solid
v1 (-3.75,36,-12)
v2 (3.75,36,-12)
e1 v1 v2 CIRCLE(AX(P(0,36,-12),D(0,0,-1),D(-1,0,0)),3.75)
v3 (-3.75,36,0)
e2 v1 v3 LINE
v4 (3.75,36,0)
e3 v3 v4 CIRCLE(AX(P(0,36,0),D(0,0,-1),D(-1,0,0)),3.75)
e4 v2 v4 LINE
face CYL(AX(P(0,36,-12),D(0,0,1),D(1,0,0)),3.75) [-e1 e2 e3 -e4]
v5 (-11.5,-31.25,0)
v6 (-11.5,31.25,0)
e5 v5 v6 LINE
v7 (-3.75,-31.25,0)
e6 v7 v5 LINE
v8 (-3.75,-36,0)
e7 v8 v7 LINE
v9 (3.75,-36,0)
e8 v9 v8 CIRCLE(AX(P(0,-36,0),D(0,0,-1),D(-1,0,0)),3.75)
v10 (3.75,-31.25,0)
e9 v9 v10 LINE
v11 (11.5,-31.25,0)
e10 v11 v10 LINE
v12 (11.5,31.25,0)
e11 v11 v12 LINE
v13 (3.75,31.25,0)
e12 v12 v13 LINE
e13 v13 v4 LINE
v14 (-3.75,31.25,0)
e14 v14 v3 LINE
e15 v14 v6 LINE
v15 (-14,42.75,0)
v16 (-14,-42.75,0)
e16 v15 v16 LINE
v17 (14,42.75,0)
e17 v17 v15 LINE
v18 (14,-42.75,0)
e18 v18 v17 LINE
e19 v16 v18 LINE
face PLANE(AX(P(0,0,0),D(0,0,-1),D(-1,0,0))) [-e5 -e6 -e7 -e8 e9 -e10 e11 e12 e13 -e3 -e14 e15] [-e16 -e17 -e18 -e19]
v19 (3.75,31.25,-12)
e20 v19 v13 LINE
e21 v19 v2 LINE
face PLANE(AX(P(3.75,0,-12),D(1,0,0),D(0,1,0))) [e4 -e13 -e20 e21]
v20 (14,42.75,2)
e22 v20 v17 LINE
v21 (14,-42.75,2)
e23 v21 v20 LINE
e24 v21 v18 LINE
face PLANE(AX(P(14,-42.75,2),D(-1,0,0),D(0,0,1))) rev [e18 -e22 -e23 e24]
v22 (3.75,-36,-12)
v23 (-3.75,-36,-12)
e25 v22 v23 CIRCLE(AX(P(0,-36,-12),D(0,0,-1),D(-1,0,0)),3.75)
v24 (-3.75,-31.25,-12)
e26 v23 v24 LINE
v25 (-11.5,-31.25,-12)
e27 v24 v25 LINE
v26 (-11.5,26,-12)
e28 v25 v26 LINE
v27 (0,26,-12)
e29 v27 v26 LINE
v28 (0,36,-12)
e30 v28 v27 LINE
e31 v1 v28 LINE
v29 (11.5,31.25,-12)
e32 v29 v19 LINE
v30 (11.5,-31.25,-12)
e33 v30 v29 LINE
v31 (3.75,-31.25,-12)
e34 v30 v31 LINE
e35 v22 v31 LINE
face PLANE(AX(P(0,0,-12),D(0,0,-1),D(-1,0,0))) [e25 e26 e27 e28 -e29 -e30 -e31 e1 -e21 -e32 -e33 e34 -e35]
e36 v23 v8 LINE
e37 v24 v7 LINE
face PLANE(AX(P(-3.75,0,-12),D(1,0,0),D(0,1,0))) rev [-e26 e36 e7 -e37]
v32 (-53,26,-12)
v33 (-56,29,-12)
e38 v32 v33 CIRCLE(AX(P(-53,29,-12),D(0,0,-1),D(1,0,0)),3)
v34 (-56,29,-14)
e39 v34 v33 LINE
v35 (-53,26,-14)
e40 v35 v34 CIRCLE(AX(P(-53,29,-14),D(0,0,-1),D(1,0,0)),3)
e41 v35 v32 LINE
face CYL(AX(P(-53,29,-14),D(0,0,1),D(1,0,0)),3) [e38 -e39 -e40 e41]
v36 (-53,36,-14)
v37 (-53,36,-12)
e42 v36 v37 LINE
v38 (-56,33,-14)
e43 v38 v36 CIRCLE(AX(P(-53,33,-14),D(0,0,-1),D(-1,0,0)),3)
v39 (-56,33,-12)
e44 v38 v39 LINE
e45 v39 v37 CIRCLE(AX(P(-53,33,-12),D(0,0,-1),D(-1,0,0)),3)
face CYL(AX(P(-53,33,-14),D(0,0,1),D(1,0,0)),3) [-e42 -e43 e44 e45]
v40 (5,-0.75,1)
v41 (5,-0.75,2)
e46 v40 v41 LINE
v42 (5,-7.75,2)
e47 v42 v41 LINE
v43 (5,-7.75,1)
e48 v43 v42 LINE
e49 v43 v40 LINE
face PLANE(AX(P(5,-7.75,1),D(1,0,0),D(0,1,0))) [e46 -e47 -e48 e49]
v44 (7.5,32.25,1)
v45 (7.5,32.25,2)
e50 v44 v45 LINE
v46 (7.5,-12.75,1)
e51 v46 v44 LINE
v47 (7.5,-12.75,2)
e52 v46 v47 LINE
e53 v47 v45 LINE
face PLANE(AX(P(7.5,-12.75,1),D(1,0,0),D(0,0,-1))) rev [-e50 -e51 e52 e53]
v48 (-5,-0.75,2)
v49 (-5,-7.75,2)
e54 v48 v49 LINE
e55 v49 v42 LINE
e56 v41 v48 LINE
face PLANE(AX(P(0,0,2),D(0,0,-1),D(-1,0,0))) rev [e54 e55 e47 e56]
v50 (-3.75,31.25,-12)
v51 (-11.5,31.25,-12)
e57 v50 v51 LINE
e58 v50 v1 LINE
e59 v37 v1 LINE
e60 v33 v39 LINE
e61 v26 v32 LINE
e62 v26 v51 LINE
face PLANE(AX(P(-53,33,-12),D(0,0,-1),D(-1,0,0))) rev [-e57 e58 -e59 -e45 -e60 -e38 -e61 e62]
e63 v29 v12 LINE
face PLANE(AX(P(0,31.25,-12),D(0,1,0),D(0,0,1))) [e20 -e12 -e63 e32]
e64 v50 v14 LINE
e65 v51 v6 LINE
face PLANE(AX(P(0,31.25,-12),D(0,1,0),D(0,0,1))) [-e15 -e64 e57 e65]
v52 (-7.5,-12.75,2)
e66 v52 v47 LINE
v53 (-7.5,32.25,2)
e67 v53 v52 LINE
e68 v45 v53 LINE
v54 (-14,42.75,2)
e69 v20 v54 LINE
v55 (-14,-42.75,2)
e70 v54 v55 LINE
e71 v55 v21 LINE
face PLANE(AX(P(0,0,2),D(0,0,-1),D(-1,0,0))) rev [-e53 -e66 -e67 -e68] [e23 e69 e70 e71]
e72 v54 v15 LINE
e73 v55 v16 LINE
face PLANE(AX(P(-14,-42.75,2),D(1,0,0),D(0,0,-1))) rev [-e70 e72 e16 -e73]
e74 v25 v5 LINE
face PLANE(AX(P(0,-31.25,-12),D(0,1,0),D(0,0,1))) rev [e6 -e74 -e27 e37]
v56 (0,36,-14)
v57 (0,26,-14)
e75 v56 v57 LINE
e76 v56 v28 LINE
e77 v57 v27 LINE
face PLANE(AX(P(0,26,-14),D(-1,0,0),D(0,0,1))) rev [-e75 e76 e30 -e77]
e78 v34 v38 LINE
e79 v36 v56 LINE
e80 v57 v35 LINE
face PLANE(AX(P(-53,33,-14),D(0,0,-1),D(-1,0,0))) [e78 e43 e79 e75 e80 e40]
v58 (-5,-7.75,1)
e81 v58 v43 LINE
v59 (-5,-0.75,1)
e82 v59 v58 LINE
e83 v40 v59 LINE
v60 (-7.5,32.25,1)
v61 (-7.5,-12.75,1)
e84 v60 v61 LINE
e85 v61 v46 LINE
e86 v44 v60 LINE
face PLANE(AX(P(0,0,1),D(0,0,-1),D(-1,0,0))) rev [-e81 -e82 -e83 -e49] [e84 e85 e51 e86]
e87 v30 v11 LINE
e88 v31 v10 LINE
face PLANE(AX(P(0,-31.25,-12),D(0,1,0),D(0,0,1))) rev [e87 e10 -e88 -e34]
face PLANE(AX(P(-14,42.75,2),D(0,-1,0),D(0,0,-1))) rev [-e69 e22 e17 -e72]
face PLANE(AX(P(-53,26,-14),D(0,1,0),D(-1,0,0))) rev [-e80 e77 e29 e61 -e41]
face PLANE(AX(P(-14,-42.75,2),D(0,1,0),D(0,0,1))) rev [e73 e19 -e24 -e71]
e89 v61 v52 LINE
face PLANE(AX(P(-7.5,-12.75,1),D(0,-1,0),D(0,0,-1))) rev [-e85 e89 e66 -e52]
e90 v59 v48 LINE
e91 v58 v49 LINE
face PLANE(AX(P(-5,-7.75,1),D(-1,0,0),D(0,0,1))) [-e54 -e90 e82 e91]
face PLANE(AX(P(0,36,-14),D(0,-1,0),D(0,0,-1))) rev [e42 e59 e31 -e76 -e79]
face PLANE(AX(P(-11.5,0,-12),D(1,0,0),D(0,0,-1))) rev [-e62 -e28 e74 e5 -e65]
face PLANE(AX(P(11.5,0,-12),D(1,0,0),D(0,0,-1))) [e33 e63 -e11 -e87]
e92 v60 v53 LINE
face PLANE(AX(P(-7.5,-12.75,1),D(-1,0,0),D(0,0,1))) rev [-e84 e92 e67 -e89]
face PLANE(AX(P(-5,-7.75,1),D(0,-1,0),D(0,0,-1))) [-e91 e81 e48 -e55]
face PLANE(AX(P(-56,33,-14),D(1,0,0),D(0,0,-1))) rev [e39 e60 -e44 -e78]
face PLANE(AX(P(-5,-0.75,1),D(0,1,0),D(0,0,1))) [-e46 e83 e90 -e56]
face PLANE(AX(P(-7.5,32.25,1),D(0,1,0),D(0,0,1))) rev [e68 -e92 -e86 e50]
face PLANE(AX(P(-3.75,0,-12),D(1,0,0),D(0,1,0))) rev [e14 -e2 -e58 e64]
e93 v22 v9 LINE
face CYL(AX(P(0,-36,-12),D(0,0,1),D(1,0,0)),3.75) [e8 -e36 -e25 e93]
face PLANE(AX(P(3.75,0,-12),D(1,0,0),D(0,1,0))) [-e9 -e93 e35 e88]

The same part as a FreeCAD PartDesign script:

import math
import FreeCAD as App
import Part
import Sketcher

doc = App.newDocument("Part")
params = doc.addObject("Spreadsheet::Sheet", "Params")
for row, (alias, value) in enumerate([
    ("sketch1_width", "28 mm"),
    ("sketch1_height", "85.5 mm"),
    ("pad1_length", "2 mm"),
    ("sketch2_width", "15 mm"),
    ("sketch2_width2", "10 mm"),
    ("sketch2_height", "45 mm"),
    ("sketch2_height2", "7 mm"),
    ("pocket1_length", "1 mm"),
    ("sketch3_radius", "3.75 mm"),
    ("sketch3_height", "62.5 mm"),
    ("pad2_length", "12 mm"),
    ("sketch4_radius", "3 mm"),
    ("sketch4_width", "53 mm"),
    ("sketch4_height", "10 mm"),
    ("pad3_length", "2 mm"),
], start=1):
    params.set(f"A{row}", alias)
    params.set(f"B{row}", "=" + value)
    params.setAlias(f"B{row}", alias)

body = doc.addObject("PartDesign::Body", "Body")

# Sketch on XY plane
sketch1 = doc.addObject("Sketcher::SketchObject", "Sketch")
body.addObject(sketch1)
sketch1.AttachmentSupport = (doc.XY_Plane, [""])
sketch1.MapMode = "FlatFace"
sketch1.addGeometry(Part.LineSegment(App.Vector(-14, 43, 0), App.Vector(-14, -43, 0)), False)
sketch1.addGeometry(Part.LineSegment(App.Vector(-14, -43, 0), App.Vector(14, -43, 0)), False)
sketch1.addGeometry(Part.LineSegment(App.Vector(14, -43, 0), App.Vector(14, 43, 0)), False)
sketch1.addGeometry(Part.LineSegment(App.Vector(14, 43, 0), App.Vector(-14, 43, 0)), False)
sketch1.addConstraint(Sketcher.Constraint("Coincident", 0, 2, 1, 1))
sketch1.addConstraint(Sketcher.Constraint("Coincident", 1, 2, 2, 1))
sketch1.addConstraint(Sketcher.Constraint("Coincident", 2, 2, 3, 1))
sketch1.addConstraint(Sketcher.Constraint("Coincident", 3, 2, 0, 1))
sketch1.addConstraint(Sketcher.Constraint("Vertical", 0))
sketch1.addConstraint(Sketcher.Constraint("Horizontal", 1))
sketch1.addConstraint(Sketcher.Constraint("Vertical", 2))
sketch1.addConstraint(Sketcher.Constraint("Horizontal", 3))
sketch1.addConstraint(Sketcher.Constraint("Symmetric", 0, 2, 2, 2, -1, 1))
sketch1.addConstraint(Sketcher.Constraint("DistanceX", 1, 1, 1, 2, 28.0))
sketch1.addConstraint(Sketcher.Constraint("DistanceY", 0, 2, 0, 1, 85.5))
sketch1.setExpression("Constraints[9]", "Params.sketch1_width")
sketch1.setExpression("Constraints[10]", "Params.sketch1_height")
pad1 = doc.addObject("PartDesign::Pad", "Pad")
body.addObject(pad1)
pad1.Profile = sketch1
pad1.setExpression("Length", "Params.pad1_length")

# Sketch on XY plane
sketch2 = doc.addObject("Sketcher::SketchObject", "Sketch001")
body.addObject(sketch2)
sketch2.AttachmentSupport = (doc.XY_Plane, [""])
sketch2.MapMode = "FlatFace"
sketch2.AttachmentOffset = App.Placement(App.Vector(0, 0, 2), App.Rotation())
sketch2.addGeometry(Part.LineSegment(App.Vector(-8, 32, 0), App.Vector(-8, -13, 0)), False)
sketch2.addGeometry(Part.LineSegment(App.Vector(-8, -13, 0), App.Vector(8, -13, 0)), False)
sketch2.addGeometry(Part.LineSegment(App.Vector(8, -13, 0), App.Vector(8, 32, 0)), False)
sketch2.addGeometry(Part.LineSegment(App.Vector(8, 32, 0), App.Vector(-8, 32, 0)), False)
sketch2.addGeometry(Part.LineSegment(App.Vector(5, -8, 0), App.Vector(-5, -8, 0)), False)
sketch2.addGeometry(Part.LineSegment(App.Vector(-5, -8, 0), App.Vector(-5, -1, 0)), False)
sketch2.addGeometry(Part.LineSegment(App.Vector(-5, -1, 0), App.Vector(5, -1, 0)), False)
sketch2.addGeometry(Part.LineSegment(App.Vector(5, -1, 0), App.Vector(5, -8, 0)), False)
sketch2.addConstraint(Sketcher.Constraint("Coincident", 0, 2, 1, 1))
sketch2.addConstraint(Sketcher.Constraint("Coincident", 1, 2, 2, 1))
sketch2.addConstraint(Sketcher.Constraint("Coincident", 2, 2, 3, 1))
sketch2.addConstraint(Sketcher.Constraint("Coincident", 3, 2, 0, 1))
sketch2.addConstraint(Sketcher.Constraint("Coincident", 4, 2, 5, 1))
sketch2.addConstraint(Sketcher.Constraint("Coincident", 5, 2, 6, 1))
sketch2.addConstraint(Sketcher.Constraint("Coincident", 6, 2, 7, 1))
sketch2.addConstraint(Sketcher.Constraint("Coincident", 7, 2, 4, 1))
sketch2.addConstraint(Sketcher.Constraint("Vertical", 0))
sketch2.addConstraint(Sketcher.Constraint("Horizontal", 1))
sketch2.addConstraint(Sketcher.Constraint("Vertical", 2))
sketch2.addConstraint(Sketcher.Constraint("Horizontal", 3))
sketch2.addConstraint(Sketcher.Constraint("Horizontal", 4))
sketch2.addConstraint(Sketcher.Constraint("Vertical", 5))
sketch2.addConstraint(Sketcher.Constraint("Horizontal", 6))
sketch2.addConstraint(Sketcher.Constraint("Vertical", 7))
sketch2.addConstraint(Sketcher.Constraint("DistanceX", 1, 1, 1, 2, 15.0))
sketch2.addConstraint(Sketcher.Constraint("DistanceX", 4, 2, 4, 1, 10.0))
sketch2.addConstraint(Sketcher.Constraint("DistanceY", 0, 2, 0, 1, 45.0))
sketch2.addConstraint(Sketcher.Constraint("DistanceY", 5, 1, 5, 2, 7.0))
sketch2.addConstraint(Sketcher.Constraint("DistanceX", 4, 2, -1, 1, 5.0))
sketch2.addConstraint(Sketcher.Constraint("DistanceY", 0, 2, 4, 2, 5.0))
sketch2.addConstraint(Sketcher.Constraint("DistanceX", 0, 2, -1, 1, 7.5))
sketch2.addConstraint(Sketcher.Constraint("DistanceY", 0, 2, -1, 1, 12.75))
sketch2.setExpression("Constraints[16]", "Params.sketch2_width")
sketch2.setExpression("Constraints[17]", "Params.sketch2_width2")
sketch2.setExpression("Constraints[18]", "Params.sketch2_height")
sketch2.setExpression("Constraints[19]", "Params.sketch2_height2")
pocket1 = doc.addObject("PartDesign::Pocket", "Pocket")
body.addObject(pocket1)
pocket1.Profile = sketch2
pocket1.setExpression("Length", "Params.pocket1_length")

# Sketch on XY plane
sketch3 = doc.addObject("Sketcher::SketchObject", "Sketch002")
body.addObject(sketch3)
sketch3.AttachmentSupport = (doc.XY_Plane, [""])
sketch3.MapMode = "FlatFace"
sketch3.addGeometry(Part.LineSegment(App.Vector(11.5, 31.2, 0), App.Vector(11.5, -31.2, 0)), False)
sketch3.addGeometry(Part.LineSegment(App.Vector(11.5, -31.2, 0), App.Vector(3.8, -31.2, 0)), False)
sketch3.addGeometry(Part.LineSegment(App.Vector(3.8, -31.2, 0), App.Vector(3.8, -36, 0)), False)
sketch3.addGeometry(Part.ArcOfCircle(Part.Circle(App.Vector(0, -36, 0), App.Vector(0, 0, 1), 3.8), math.radians(180), math.radians(360)), False)
sketch3.addGeometry(Part.LineSegment(App.Vector(-3.8, -36, 0), App.Vector(-3.8, -31.2, 0)), False)
sketch3.addGeometry(Part.LineSegment(App.Vector(-3.8, -31.2, 0), App.Vector(-11.5, -31.2, 0)), False)
sketch3.addGeometry(Part.LineSegment(App.Vector(-11.5, -31.2, 0), App.Vector(-11.5, 31.2, 0)), False)
sketch3.addGeometry(Part.LineSegment(App.Vector(-11.5, 31.2, 0), App.Vector(-3.8, 31.2, 0)), False)
sketch3.addGeometry(Part.LineSegment(App.Vector(-3.8, 31.2, 0), App.Vector(-3.8, 36, 0)), False)
sketch3.addGeometry(Part.ArcOfCircle(Part.Circle(App.Vector(0, 36, 0), App.Vector(0, 0, 1), 3.8), math.radians(0), math.radians(180)), False)
sketch3.addGeometry(Part.LineSegment(App.Vector(3.8, 36, 0), App.Vector(3.8, 31.2, 0)), False)
sketch3.addGeometry(Part.LineSegment(App.Vector(3.8, 31.2, 0), App.Vector(11.5, 31.2, 0)), False)
sketch3.addConstraint(Sketcher.Constraint("Coincident", 0, 2, 1, 1))
sketch3.addConstraint(Sketcher.Constraint("Coincident", 1, 2, 2, 1))
sketch3.addConstraint(Sketcher.Constraint("Tangent", 2, 2, 3, 2))
sketch3.addConstraint(Sketcher.Constraint("Tangent", 3, 1, 4, 1))
sketch3.addConstraint(Sketcher.Constraint("Coincident", 4, 2, 5, 1))
sketch3.addConstraint(Sketcher.Constraint("Coincident", 5, 2, 6, 1))
sketch3.addConstraint(Sketcher.Constraint("Coincident", 6, 2, 7, 1))
sketch3.addConstraint(Sketcher.Constraint("Coincident", 7, 2, 8, 1))
sketch3.addConstraint(Sketcher.Constraint("Tangent", 8, 2, 9, 2))
sketch3.addConstraint(Sketcher.Constraint("Tangent", 9, 1, 10, 1))
sketch3.addConstraint(Sketcher.Constraint("Coincident", 10, 2, 11, 1))
sketch3.addConstraint(Sketcher.Constraint("Coincident", 11, 2, 0, 1))
sketch3.addConstraint(Sketcher.Constraint("Vertical", 0))
sketch3.addConstraint(Sketcher.Constraint("Horizontal", 1))
sketch3.addConstraint(Sketcher.Constraint("Vertical", 2))
sketch3.addConstraint(Sketcher.Constraint("Vertical", 4))
sketch3.addConstraint(Sketcher.Constraint("Horizontal", 5))
sketch3.addConstraint(Sketcher.Constraint("Vertical", 6))
sketch3.addConstraint(Sketcher.Constraint("Horizontal", 7))
sketch3.addConstraint(Sketcher.Constraint("Vertical", 8))
sketch3.addConstraint(Sketcher.Constraint("Vertical", 10))
sketch3.addConstraint(Sketcher.Constraint("Horizontal", 11))
sketch3.addConstraint(Sketcher.Constraint("Equal", 3, 9))
sketch3.addConstraint(Sketcher.Constraint("Symmetric", 3, 3, 9, 3, -1, 1))
sketch3.addConstraint(Sketcher.Constraint("Symmetric", 0, 2, 6, 2, -1, 1))
sketch3.addConstraint(Sketcher.Constraint("Symmetric", 1, 2, 4, 2, -2))
sketch3.addConstraint(Sketcher.Constraint("Horizontal", 7, 2, 10, 2))
sketch3.addConstraint(Sketcher.Constraint("Radius", 3, 3.75))
sketch3.addConstraint(Sketcher.Constraint("DistanceY", 0, 2, 0, 1, 62.5))
sketch3.addConstraint(Sketcher.Constraint("DistanceY", 3, 3, -1, 1, 36.0))
sketch3.addConstraint(Sketcher.Constraint("DistanceX", 6, 2, 0, 2, 23.0))
sketch3.setExpression("Constraints[27]", "Params.sketch3_radius")
sketch3.setExpression("Constraints[28]", "Params.sketch3_height")
pad2 = doc.addObject("PartDesign::Pad", "Pad001")
body.addObject(pad2)
pad2.Profile = sketch3
pad2.setExpression("Length", "Params.pad2_length")
pad2.Reversed = True

# Sketch on XY plane
sketch4 = doc.addObject("Sketcher::SketchObject", "Sketch003")
body.addObject(sketch4)
sketch4.AttachmentSupport = (doc.XY_Plane, [""])
sketch4.MapMode = "FlatFace"
sketch4.AttachmentOffset = App.Placement(App.Vector(0, 0, -12), App.Rotation())
sketch4.addGeometry(Part.LineSegment(App.Vector(-53, 36, 0), App.Vector(0, 36, 0)), False)
sketch4.addGeometry(Part.LineSegment(App.Vector(0, 36, 0), App.Vector(0, 26, 0)), False)
sketch4.addGeometry(Part.LineSegment(App.Vector(0, 26, 0), App.Vector(-53, 26, 0)), False)
sketch4.addGeometry(Part.ArcOfCircle(Part.Circle(App.Vector(-53, 29, 0), App.Vector(0, 0, 1), 3), math.radians(180), math.radians(270)), False)
sketch4.addGeometry(Part.LineSegment(App.Vector(-56, 29, 0), App.Vector(-56, 33, 0)), False)
sketch4.addGeometry(Part.ArcOfCircle(Part.Circle(App.Vector(-53, 33, 0), App.Vector(0, 0, 1), 3), math.radians(90), math.radians(180)), False)
sketch4.addConstraint(Sketcher.Constraint("Coincident", 0, 2, 1, 1))
sketch4.addConstraint(Sketcher.Constraint("Coincident", 1, 2, 2, 1))
sketch4.addConstraint(Sketcher.Constraint("Tangent", 2, 2, 3, 2))
sketch4.addConstraint(Sketcher.Constraint("Tangent", 3, 1, 4, 1))
sketch4.addConstraint(Sketcher.Constraint("Tangent", 4, 2, 5, 2))
sketch4.addConstraint(Sketcher.Constraint("Tangent", 5, 1, 0, 1))
sketch4.addConstraint(Sketcher.Constraint("Horizontal", 0))
sketch4.addConstraint(Sketcher.Constraint("Vertical", 1))
sketch4.addConstraint(Sketcher.Constraint("Horizontal", 2))
sketch4.addConstraint(Sketcher.Constraint("Vertical", 4))
sketch4.addConstraint(Sketcher.Constraint("Equal", 3, 5))
sketch4.addConstraint(Sketcher.Constraint("PointOnObject", 0, 2, -2))
sketch4.addConstraint(Sketcher.Constraint("Radius", 3, 3.0))
sketch4.addConstraint(Sketcher.Constraint("DistanceX", 0, 1, 0, 2, 53.0))
sketch4.addConstraint(Sketcher.Constraint("DistanceY", 1, 2, 1, 1, 10.0))
sketch4.addConstraint(Sketcher.Constraint("DistanceY", -1, 1, 3, 3, 29.0))
sketch4.setExpression("Constraints[12]", "Params.sketch4_radius")
sketch4.setExpression("Constraints[13]", "Params.sketch4_width")
sketch4.setExpression("Constraints[14]", "Params.sketch4_height")
pad3 = doc.addObject("PartDesign::Pad", "Pad002")
body.addObject(pad3)
pad3.Profile = sketch4
pad3.setExpression("Length", "Params.pad3_length")
pad3.Reversed = True

doc.recompute()
